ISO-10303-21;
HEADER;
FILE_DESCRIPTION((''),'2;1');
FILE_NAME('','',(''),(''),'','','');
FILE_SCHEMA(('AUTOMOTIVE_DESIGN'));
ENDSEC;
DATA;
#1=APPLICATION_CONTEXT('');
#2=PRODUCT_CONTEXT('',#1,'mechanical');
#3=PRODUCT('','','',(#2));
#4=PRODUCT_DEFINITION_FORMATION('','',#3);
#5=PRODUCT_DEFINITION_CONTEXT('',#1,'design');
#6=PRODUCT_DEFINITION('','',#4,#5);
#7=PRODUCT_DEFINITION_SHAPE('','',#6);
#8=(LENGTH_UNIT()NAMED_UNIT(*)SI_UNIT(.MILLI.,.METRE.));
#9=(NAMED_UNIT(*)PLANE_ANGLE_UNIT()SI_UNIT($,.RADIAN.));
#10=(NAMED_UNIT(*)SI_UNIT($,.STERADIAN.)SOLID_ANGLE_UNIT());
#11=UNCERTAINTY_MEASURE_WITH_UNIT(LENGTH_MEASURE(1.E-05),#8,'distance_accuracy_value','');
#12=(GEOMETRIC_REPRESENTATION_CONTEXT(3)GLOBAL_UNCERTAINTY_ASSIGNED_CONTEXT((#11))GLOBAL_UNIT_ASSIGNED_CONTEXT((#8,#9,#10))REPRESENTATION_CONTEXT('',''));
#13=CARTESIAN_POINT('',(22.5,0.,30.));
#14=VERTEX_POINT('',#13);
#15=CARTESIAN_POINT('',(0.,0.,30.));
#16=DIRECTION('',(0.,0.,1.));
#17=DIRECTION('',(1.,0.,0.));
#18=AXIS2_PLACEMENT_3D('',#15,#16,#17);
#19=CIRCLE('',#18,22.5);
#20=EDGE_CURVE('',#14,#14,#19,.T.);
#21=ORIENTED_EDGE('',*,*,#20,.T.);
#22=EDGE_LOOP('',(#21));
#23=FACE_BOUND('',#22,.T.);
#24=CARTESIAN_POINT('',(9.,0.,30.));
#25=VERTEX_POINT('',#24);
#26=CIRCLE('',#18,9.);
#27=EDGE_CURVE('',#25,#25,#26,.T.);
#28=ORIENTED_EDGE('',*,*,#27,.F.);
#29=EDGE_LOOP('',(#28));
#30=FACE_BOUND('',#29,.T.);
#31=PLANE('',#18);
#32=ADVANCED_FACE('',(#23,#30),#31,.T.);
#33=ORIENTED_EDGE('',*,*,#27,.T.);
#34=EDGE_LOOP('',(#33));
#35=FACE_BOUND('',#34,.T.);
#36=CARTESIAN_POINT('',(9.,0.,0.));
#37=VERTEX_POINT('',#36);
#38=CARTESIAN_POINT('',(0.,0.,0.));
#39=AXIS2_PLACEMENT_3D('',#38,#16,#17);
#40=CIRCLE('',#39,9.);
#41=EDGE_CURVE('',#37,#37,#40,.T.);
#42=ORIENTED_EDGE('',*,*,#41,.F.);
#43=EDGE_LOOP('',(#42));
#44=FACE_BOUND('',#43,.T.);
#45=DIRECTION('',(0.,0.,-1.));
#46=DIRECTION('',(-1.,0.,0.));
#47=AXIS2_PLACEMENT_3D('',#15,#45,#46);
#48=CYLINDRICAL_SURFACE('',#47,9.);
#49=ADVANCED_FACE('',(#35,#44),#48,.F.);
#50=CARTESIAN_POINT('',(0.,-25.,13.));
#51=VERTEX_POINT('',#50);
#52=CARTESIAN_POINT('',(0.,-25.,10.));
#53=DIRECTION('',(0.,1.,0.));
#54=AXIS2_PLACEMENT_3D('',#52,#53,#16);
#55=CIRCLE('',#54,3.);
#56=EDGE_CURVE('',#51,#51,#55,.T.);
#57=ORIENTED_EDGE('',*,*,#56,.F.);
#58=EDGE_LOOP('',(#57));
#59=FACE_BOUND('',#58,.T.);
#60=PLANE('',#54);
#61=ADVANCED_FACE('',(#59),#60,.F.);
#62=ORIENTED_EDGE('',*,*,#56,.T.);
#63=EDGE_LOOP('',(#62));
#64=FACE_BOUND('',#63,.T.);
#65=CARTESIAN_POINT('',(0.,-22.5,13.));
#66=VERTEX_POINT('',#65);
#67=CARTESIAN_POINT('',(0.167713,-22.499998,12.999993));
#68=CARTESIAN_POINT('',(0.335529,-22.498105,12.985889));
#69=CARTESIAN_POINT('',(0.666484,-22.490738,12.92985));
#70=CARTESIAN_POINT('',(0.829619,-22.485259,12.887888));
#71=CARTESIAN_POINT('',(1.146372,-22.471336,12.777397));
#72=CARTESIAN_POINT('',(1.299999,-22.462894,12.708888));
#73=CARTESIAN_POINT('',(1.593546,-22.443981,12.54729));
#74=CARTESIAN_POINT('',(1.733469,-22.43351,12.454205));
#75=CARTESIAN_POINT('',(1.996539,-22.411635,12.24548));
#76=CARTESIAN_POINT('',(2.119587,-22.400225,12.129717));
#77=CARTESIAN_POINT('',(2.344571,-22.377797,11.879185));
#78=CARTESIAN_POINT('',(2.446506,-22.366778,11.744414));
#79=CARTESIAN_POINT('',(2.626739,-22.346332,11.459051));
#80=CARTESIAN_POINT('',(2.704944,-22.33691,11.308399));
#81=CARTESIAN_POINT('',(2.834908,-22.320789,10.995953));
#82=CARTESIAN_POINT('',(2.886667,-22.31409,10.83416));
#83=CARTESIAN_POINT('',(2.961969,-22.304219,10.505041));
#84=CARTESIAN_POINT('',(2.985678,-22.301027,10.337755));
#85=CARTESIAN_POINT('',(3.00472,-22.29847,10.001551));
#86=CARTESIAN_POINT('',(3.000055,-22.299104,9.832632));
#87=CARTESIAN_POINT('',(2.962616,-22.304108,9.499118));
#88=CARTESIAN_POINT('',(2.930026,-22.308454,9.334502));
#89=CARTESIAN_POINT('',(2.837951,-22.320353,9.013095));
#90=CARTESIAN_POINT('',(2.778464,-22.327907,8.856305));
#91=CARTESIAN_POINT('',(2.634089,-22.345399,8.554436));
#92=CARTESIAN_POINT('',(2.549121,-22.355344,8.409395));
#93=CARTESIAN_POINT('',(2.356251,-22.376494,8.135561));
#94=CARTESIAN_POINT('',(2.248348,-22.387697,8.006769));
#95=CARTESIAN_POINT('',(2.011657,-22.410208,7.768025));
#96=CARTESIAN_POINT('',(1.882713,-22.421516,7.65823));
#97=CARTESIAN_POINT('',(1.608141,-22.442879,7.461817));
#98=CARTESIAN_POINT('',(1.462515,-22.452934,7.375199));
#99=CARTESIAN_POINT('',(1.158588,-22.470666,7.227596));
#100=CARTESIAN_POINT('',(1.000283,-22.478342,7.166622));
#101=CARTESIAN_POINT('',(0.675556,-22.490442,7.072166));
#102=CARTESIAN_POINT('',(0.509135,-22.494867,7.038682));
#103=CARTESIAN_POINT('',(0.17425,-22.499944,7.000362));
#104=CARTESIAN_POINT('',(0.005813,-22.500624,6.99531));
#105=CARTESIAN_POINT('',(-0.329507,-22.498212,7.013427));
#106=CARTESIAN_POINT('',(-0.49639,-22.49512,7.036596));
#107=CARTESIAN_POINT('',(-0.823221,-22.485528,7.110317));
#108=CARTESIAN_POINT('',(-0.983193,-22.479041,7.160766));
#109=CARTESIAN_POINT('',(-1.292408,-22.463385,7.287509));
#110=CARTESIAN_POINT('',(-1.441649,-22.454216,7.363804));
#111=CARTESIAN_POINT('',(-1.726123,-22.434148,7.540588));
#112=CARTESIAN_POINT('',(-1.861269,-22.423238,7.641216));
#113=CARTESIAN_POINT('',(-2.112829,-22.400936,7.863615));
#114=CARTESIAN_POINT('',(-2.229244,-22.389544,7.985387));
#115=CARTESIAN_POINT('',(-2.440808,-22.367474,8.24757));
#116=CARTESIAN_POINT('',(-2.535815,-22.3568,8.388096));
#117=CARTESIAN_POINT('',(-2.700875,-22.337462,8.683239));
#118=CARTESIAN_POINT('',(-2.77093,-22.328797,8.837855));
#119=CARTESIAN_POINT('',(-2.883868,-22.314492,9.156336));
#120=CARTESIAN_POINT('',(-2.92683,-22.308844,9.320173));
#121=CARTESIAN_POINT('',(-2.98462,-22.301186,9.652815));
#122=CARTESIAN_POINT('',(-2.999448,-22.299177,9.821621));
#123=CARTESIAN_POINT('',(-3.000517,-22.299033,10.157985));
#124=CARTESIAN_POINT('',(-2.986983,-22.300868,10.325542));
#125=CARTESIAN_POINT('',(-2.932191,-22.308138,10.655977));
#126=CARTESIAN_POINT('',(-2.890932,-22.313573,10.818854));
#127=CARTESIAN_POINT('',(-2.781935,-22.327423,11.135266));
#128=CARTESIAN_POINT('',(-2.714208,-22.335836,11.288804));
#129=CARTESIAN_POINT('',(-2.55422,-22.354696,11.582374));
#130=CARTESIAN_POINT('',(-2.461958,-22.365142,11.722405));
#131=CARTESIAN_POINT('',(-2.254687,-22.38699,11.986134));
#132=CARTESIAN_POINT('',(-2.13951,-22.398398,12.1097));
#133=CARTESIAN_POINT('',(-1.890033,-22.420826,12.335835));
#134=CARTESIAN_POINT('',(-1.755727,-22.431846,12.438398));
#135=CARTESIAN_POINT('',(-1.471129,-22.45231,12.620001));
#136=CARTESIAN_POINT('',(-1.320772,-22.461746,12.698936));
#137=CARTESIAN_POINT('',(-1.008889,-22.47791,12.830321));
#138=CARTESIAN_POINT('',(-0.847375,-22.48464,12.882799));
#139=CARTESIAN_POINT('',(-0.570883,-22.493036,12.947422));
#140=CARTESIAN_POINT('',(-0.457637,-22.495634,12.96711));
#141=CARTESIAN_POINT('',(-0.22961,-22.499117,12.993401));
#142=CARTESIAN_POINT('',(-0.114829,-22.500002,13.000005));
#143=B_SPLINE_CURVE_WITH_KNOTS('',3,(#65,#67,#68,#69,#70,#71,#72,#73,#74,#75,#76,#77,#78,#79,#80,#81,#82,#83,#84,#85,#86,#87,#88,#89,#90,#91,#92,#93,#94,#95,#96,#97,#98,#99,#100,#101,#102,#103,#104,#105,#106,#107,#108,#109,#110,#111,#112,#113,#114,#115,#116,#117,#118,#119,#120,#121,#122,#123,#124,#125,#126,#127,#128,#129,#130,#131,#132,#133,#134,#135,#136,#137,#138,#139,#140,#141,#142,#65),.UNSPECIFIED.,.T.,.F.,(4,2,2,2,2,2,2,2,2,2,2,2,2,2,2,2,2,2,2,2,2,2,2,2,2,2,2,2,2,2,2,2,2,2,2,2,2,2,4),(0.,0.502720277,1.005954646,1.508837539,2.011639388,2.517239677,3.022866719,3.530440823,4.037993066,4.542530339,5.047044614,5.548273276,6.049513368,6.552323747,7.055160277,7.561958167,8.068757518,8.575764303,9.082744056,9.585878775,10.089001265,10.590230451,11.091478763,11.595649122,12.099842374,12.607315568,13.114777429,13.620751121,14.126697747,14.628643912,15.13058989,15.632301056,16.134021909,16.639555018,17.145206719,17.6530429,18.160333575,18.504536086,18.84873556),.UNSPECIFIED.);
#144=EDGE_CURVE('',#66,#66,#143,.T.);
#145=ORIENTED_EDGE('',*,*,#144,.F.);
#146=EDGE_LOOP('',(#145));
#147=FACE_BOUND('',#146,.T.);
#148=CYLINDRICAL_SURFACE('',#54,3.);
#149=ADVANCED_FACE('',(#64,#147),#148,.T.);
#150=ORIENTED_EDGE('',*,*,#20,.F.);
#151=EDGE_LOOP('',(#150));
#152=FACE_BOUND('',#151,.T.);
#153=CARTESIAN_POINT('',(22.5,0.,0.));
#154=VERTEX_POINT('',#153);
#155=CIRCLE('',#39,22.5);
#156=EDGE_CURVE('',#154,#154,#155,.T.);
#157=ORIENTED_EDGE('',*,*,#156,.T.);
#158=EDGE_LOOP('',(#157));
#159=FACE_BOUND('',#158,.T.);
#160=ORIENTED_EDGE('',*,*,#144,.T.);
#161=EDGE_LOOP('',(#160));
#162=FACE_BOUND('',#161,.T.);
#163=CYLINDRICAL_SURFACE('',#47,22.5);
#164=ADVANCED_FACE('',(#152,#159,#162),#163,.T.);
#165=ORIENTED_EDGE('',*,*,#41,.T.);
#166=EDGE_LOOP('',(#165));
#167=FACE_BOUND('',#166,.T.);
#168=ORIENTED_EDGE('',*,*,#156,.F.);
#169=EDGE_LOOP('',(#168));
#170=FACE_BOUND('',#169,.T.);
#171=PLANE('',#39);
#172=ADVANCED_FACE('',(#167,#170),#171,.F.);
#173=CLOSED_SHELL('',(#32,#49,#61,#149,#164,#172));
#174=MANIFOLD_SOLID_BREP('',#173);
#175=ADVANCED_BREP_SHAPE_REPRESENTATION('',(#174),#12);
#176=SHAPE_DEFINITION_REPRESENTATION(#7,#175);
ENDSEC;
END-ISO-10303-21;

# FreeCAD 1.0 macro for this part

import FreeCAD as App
import Part
import Sketcher

V = App.Vector

doc = App.newDocument("Part")
body = doc.addObject("PartDesign::Body", "Body")

# Sketch on XY plane
sketch1 = body.newObject("Sketcher::SketchObject", "Sketch")
sketch1.AttachmentSupport = (doc.getObject("XY_Plane"), [""])
sketch1.MapMode = "FlatFace"
sketch1.addGeometry([
    Part.Circle(V(0, 0, 0), V(0, 0, 1), 22.5),
    Part.Circle(V(0, 0, 0), V(0, 0, 1), 9),
], False)
sketch1.addConstraint([
    Sketcher.Constraint("Coincident", 0, 3, -1, 1),
    Sketcher.Constraint("Coincident", 1, 3, -1, 1),
    Sketcher.Constraint("Diameter", 0, 45.0),
    Sketcher.Constraint("Diameter", 1, 18.0),
])
pad1 = body.newObject("PartDesign::Pad", "Pad")
pad1.Profile = sketch1
pad1.Length = 30

# Sketch on XZ plane
sketch2 = body.newObject("Sketcher::SketchObject", "Sketch001")
sketch2.AttachmentSupport = (doc.getObject("XZ_Plane"), [""])
sketch2.MapMode = "FlatFace"
sketch2.addGeometry(Part.Circle(V(0, 10, 0), V(0, 0, 1), 3), False)
sketch2.addConstraint([
    Sketcher.Constraint("PointOnObject", 0, 3, -2),
    Sketcher.Constraint("Diameter", 0, 6.0),
    Sketcher.Constraint("DistanceY", -1, 1, 0, 3, 10.0),
])
pad2 = body.newObject("PartDesign::Pad", "Pad001")
pad2.Profile = sketch2
pad2.Length = 25

# Sketch on XY plane
sketch3 = body.newObject("Sketcher::SketchObject", "Sketch002")
sketch3.AttachmentSupport = (doc.getObject("XY_Plane"), [""])
sketch3.MapMode = "FlatFace"
sketch3.AttachmentOffset = App.Placement(V(0, 0, 30), App.Rotation())
sketch3.addGeometry(Part.Circle(V(0, 0, 0), V(0, 0, 1), 9), False)
sketch3.addConstraint([
    Sketcher.Constraint("Coincident", 0, 3, -1, 1),
    Sketcher.Constraint("Diameter", 0, 18.0),
])
pocket1 = body.newObject("PartDesign::Pocket", "Pocket")
pocket1.Profile = sketch3
pocket1.Length = 40

doc.recompute()
